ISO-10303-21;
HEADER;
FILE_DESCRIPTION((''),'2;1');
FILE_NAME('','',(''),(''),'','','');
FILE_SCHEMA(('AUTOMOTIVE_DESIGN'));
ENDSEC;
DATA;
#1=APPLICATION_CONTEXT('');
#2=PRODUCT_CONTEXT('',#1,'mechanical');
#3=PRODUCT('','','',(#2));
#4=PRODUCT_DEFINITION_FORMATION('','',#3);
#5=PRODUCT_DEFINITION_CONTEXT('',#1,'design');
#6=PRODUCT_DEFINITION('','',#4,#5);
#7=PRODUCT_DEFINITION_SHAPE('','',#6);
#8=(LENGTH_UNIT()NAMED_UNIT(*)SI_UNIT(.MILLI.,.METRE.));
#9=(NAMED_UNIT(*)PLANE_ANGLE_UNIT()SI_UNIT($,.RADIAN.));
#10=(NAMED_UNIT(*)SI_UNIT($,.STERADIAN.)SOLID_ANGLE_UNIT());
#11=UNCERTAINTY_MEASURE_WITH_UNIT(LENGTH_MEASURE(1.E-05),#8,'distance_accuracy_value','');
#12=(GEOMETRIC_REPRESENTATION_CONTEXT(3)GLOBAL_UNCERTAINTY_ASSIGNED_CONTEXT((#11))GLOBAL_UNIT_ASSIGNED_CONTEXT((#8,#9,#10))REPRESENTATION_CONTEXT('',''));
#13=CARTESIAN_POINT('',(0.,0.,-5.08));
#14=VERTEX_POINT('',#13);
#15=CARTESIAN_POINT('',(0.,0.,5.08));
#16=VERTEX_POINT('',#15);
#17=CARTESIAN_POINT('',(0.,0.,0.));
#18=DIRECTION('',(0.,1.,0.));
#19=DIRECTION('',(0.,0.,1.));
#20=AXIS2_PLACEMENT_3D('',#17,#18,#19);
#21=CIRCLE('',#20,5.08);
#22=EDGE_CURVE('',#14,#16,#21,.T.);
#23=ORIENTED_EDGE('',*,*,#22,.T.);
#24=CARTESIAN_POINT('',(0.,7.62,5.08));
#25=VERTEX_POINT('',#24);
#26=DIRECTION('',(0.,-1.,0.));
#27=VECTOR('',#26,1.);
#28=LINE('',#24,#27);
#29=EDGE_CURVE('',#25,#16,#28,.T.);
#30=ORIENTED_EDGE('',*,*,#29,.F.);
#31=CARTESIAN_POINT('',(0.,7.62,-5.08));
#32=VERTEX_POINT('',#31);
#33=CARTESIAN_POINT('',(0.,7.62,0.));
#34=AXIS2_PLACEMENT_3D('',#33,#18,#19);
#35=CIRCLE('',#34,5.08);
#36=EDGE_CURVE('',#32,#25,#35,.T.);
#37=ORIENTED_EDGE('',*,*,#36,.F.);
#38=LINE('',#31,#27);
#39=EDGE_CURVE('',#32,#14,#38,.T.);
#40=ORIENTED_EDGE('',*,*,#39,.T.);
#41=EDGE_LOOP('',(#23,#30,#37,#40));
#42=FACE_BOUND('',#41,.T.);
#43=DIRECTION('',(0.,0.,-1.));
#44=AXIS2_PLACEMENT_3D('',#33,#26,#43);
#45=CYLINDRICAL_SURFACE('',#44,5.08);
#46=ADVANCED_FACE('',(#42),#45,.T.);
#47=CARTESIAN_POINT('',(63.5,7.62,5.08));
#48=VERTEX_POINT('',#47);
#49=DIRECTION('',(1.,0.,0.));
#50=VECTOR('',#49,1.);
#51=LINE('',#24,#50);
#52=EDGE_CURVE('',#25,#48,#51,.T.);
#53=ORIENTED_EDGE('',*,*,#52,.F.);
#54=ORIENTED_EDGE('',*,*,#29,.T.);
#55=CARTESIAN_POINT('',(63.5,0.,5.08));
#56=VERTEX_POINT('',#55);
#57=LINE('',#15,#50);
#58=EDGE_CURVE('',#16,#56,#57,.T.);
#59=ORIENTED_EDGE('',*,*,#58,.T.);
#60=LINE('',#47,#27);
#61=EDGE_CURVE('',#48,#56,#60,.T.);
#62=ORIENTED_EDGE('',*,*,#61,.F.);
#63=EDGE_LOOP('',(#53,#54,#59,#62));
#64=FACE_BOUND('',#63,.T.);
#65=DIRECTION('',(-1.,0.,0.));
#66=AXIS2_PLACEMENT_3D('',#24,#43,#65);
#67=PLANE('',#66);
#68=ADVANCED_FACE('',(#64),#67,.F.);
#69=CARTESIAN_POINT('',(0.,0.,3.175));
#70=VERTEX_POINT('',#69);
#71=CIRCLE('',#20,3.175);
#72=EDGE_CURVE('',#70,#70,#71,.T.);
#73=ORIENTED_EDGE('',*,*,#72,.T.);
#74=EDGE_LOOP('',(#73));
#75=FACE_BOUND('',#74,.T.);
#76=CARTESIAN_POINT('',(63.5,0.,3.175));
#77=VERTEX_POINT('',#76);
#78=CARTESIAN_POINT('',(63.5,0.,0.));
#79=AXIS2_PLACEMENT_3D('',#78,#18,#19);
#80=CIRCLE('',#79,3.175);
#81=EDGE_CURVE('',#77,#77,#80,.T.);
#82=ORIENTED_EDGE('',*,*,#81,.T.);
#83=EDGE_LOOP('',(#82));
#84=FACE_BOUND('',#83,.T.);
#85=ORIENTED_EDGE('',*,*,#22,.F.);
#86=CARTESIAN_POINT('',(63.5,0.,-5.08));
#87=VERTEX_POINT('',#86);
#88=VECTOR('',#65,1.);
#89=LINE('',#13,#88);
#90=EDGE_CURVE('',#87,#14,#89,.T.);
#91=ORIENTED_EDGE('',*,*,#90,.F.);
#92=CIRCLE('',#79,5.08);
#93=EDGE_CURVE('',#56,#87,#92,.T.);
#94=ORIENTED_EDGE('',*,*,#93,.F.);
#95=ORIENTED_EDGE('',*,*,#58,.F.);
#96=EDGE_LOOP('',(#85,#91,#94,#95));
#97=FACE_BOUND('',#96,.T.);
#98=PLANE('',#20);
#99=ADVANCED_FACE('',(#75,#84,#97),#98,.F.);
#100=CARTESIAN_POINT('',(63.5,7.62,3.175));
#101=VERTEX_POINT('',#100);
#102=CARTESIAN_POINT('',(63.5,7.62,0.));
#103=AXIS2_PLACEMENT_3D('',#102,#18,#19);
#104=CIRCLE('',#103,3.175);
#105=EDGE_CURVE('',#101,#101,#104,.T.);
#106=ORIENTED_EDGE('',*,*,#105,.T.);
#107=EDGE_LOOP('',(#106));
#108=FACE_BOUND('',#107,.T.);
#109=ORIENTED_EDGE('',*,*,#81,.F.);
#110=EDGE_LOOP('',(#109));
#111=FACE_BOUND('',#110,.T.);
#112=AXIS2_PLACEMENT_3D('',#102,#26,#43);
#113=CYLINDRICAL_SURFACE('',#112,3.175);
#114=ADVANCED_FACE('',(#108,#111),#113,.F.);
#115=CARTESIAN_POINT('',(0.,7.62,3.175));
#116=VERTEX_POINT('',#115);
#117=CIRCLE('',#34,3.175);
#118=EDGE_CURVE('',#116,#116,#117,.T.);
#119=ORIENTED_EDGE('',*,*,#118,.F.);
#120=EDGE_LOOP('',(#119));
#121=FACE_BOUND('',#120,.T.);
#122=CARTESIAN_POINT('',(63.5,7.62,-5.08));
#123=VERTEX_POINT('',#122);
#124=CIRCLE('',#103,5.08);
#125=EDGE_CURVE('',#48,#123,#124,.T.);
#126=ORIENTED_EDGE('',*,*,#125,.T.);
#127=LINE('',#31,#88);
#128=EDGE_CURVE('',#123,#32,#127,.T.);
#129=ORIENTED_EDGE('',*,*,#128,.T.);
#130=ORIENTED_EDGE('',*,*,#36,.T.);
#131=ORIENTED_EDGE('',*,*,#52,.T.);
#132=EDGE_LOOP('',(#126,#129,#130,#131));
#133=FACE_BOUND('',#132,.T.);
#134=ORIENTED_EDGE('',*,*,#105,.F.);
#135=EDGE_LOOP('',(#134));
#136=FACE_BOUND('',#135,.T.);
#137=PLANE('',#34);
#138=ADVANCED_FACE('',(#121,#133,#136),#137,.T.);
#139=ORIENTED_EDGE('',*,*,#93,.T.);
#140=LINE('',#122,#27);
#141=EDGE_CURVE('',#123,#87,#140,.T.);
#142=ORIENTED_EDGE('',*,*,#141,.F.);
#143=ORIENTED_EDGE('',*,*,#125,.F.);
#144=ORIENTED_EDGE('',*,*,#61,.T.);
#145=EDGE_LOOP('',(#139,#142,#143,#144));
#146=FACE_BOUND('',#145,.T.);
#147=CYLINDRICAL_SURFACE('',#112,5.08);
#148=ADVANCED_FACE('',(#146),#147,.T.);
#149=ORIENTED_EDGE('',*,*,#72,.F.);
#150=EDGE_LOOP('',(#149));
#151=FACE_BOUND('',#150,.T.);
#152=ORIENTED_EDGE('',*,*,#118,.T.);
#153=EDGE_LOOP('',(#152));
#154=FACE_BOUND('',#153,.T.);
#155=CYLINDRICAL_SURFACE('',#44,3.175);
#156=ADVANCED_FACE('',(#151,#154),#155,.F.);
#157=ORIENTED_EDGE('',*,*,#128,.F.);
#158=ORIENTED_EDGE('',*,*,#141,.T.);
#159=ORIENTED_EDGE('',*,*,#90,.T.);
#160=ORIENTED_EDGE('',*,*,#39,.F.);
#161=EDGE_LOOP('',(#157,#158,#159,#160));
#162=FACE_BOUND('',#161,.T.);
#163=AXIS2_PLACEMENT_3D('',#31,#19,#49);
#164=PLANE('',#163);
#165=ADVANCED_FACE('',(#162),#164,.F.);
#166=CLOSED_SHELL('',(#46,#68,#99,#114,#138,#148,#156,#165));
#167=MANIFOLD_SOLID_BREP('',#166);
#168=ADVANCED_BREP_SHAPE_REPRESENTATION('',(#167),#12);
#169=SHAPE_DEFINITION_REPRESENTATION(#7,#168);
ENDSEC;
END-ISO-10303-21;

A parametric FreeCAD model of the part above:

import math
import FreeCAD as App
import Part
import Sketcher
from FreeCAD import Vector
Q = App.Units.Quantity

doc = App.newDocument("Part")
body = doc.addObject("PartDesign::Body", "Body")

# Sketch on XZ plane
sketch1 = doc.addObject("Sketcher::SketchObject", "Sketch")
body.addObject(sketch1)
sketch1.AttachmentSupport = (doc.XZ_Plane, [""])
sketch1.MapMode = "FlatFace"
sketch1.addGeometry(Part.LineSegment(Vector(63.5, -5.1, 0), Vector(0, -5.1, 0)), False)
sketch1.addGeometry(Part.ArcOfCircle(Part.Circle(Vector(0, 0, 0), Vector(0, 0, 1), 5.1), math.radians(90), math.radians(270)), False)
sketch1.addGeometry(Part.LineSegment(Vector(0, 5.1, 0), Vector(63.5, 5.1, 0)), False)
sketch1.addGeometry(Part.ArcOfCircle(Part.Circle(Vector(63.5, 0, 0), Vector(0, 0, 1), 5.1), math.radians(-90), math.radians(90)), False)
sketch1.addGeometry(Part.Circle(Vector(63.5, 0, 0), Vector(0, 0, 1), 3.2), False)
sketch1.addGeometry(Part.Circle(Vector(0, 0, 0), Vector(0, 0, 1), 3.2), False)
sketch1.addConstraint(Sketcher.Constraint("Tangent", 0, 2, 1, 2))
sketch1.addConstraint(Sketcher.Constraint("Tangent", 1, 1, 2, 1))
sketch1.addConstraint(Sketcher.Constraint("Tangent", 2, 2, 3, 2))
sketch1.addConstraint(Sketcher.Constraint("Tangent", 3, 1, 0, 1))
sketch1.addConstraint(Sketcher.Constraint("Horizontal", 0))
sketch1.addConstraint(Sketcher.Constraint("Horizontal", 2))
sketch1.addConstraint(Sketcher.Constraint("Coincident", 1, 3, -1, 1))
sketch1.addConstraint(Sketcher.Constraint("Coincident", 5, 3, -1, 1))
sketch1.addConstraint(Sketcher.Constraint("Coincident", 4, 3, 3, 3))
sketch1.addConstraint(Sketcher.Constraint("Equal", 4, 5))
sketch1.addConstraint(Sketcher.Constraint("Radius", 1, Q("0.2 in")))
sketch1.addConstraint(Sketcher.Constraint("Diameter", 4, Q("0.25 in")))
sketch1.addConstraint(Sketcher.Constraint("DistanceX", 0, 2, 0, 1, Q("2.5 in")))
pad1 = doc.addObject("PartDesign::Pad", "Pad")
body.addObject(pad1)
pad1.Profile = sketch1
pad1.Length = Q("0.3 in")
pad1.Reversed = True

doc.recompute()
